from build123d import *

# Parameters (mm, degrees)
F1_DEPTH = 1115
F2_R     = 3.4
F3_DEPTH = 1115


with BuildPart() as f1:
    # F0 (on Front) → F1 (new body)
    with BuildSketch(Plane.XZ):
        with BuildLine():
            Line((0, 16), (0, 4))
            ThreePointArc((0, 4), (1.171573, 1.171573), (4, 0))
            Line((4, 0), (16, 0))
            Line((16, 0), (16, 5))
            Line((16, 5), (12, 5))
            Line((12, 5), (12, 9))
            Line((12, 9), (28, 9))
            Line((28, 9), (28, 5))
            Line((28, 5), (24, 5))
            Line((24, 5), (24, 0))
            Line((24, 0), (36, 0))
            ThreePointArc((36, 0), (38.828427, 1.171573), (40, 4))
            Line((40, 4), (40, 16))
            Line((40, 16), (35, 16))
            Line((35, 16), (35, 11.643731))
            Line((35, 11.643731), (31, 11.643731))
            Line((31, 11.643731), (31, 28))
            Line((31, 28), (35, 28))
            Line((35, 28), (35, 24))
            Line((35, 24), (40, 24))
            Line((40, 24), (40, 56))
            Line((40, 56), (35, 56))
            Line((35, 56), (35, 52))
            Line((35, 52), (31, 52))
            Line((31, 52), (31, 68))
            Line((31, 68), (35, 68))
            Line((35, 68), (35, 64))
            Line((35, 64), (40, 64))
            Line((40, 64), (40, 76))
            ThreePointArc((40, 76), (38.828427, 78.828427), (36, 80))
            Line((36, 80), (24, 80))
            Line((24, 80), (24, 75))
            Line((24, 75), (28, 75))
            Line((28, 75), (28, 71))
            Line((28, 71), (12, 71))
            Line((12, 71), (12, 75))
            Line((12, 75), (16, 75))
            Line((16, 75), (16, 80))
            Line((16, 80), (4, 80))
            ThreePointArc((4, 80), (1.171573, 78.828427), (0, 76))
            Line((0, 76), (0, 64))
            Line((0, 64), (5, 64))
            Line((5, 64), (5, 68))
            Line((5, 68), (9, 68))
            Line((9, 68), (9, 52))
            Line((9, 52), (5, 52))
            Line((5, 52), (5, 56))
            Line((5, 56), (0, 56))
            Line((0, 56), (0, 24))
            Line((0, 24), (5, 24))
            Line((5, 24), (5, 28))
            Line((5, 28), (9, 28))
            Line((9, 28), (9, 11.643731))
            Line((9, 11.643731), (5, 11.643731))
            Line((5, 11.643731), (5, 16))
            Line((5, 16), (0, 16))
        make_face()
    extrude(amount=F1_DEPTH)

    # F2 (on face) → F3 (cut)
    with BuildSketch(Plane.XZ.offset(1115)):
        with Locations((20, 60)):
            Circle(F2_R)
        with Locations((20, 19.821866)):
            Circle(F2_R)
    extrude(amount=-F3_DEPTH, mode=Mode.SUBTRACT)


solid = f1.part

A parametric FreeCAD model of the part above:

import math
import FreeCAD as App
import Part
import Sketcher
from FreeCAD import Vector
Q = App.Units.Quantity

doc = App.newDocument("Part")
body = doc.addObject("PartDesign::Body", "Body")

# Sketch on XZ plane
sketch1 = body.newObject("Sketcher::SketchObject", "Sketch")
sketch1.AttachmentSupport = (doc.getObject("XZ_Plane"), [""])
sketch1.MapMode = "FlatFace"
sketch1.addGeometry(Part.LineSegment(Vector(0, 16, 0), Vector(0, 4, 0)), False)
sketch1.addGeometry(Part.ArcOfCircle(Part.Circle(Vector(4, 4, 0), Vector(0, 0, 1), 4), math.radians(-180), math.radians(-90)), False)
sketch1.addGeometry(Part.LineSegment(Vector(4, 0, 0), Vector(16, 0, 0)), False)
sketch1.addGeometry(Part.LineSegment(Vector(16, 0, 0), Vector(16, 5, 0)), False)
sketch1.addGeometry(Part.LineSegment(Vector(16, 5, 0), Vector(12, 5, 0)), False)
sketch1.addGeometry(Part.LineSegment(Vector(12, 5, 0), Vector(12, 9, 0)), False)
sketch1.addGeometry(Part.LineSegment(Vector(12, 9, 0), Vector(28, 9, 0)), False)
sketch1.addGeometry(Part.LineSegment(Vector(28, 9, 0), Vector(28, 5, 0)), False)
sketch1.addGeometry(Part.LineSegment(Vector(28, 5, 0), Vector(24, 5, 0)), False)
sketch1.addGeometry(Part.LineSegment(Vector(24, 5, 0), Vector(24, 0, 0)), False)
sketch1.addGeometry(Part.LineSegment(Vector(24, 0, 0), Vector(36, 0, 0)), False)
sketch1.addGeometry(Part.ArcOfCircle(Part.Circle(Vector(36, 4, 0), Vector(0, 0, 1), 4), math.radians(-90), math.radians(0)), False)
sketch1.addGeometry(Part.LineSegment(Vector(40, 4, 0), Vector(40, 16, 0)), False)
sketch1.addGeometry(Part.LineSegment(Vector(40, 16, 0), Vector(35, 16, 0)), False)
sketch1.addGeometry(Part.LineSegment(Vector(35, 16, 0), Vector(35, 11.6, 0)), False)
sketch1.addGeometry(Part.LineSegment(Vector(35, 11.6, 0), Vector(31, 11.6, 0)), False)
sketch1.addGeometry(Part.LineSegment(Vector(31, 11.6, 0), Vector(31, 28, 0)), False)
sketch1.addGeometry(Part.LineSegment(Vector(31, 28, 0), Vector(35, 28, 0)), False)
sketch1.addGeometry(Part.LineSegment(Vector(35, 28, 0), Vector(35, 24, 0)), False)
sketch1.addGeometry(Part.LineSegment(Vector(35, 24, 0), Vector(40, 24, 0)), False)
sketch1.addGeometry(Part.LineSegment(Vector(40, 24, 0), Vector(40, 56, 0)), False)
sketch1.addGeometry(Part.LineSegment(Vector(40, 56, 0), Vector(35, 56, 0)), False)
sketch1.addGeometry(Part.LineSegment(Vector(35, 56, 0), Vector(35, 52, 0)), False)
sketch1.addGeometry(Part.LineSegment(Vector(35, 52, 0), Vector(31, 52, 0)), False)
sketch1.addGeometry(Part.LineSegment(Vector(31, 52, 0), Vector(31, 68, 0)), False)
sketch1.addGeometry(Part.LineSegment(Vector(31, 68, 0), Vector(35, 68, 0)), False)
sketch1.addGeometry(Part.LineSegment(Vector(35, 68, 0), Vector(35, 64, 0)), False)
sketch1.addGeometry(Part.LineSegment(Vector(35, 64, 0), Vector(40, 64, 0)), False)
sketch1.addGeometry(Part.LineSegment(Vector(40, 64, 0), Vector(40, 76, 0)), False)
sketch1.addGeometry(Part.ArcOfCircle(Part.Circle(Vector(36, 76, 0), Vector(0, 0, 1), 4), math.radians(0), math.radians(90)), False)
sketch1.addGeometry(Part.LineSegment(Vector(36, 80, 0), Vector(24, 80, 0)), False)
sketch1.addGeometry(Part.LineSegment(Vector(24, 80, 0), Vector(24, 75, 0)), False)
sketch1.addGeometry(Part.LineSegment(Vector(24, 75, 0), Vector(28, 75, 0)), False)
sketch1.addGeometry(Part.LineSegment(Vector(28, 75, 0), Vector(28, 71, 0)), False)
sketch1.addGeometry(Part.LineSegment(Vector(28, 71, 0), Vector(12, 71, 0)), False)
sketch1.addGeometry(Part.LineSegment(Vector(12, 71, 0), Vector(12, 75, 0)), False)
sketch1.addGeometry(Part.LineSegment(Vector(12, 75, 0), Vector(16, 75, 0)), False)
sketch1.addGeometry(Part.LineSegment(Vector(16, 75, 0), Vector(16, 80, 0)), False)
sketch1.addGeometry(Part.LineSegment(Vector(16, 80, 0), Vector(4, 80, 0)), False)
sketch1.addGeometry(Part.ArcOfCircle(Part.Circle(Vector(4, 76, 0), Vector(0, 0, 1), 4), math.radians(90), math.radians(180)), False)
sketch1.addGeometry(Part.LineSegment(Vector(0, 76, 0), Vector(0, 64, 0)), False)
sketch1.addGeometry(Part.LineSegment(Vector(0, 64, 0), Vector(5, 64, 0)), False)
sketch1.addGeometry(Part.LineSegment(Vector(5, 64, 0), Vector(5, 68, 0)), False)
sketch1.addGeometry(Part.LineSegment(Vector(5, 68, 0), Vector(9, 68, 0)), False)
sketch1.addGeometry(Part.LineSegment(Vector(9, 68, 0), Vector(9, 52, 0)), False)
sketch1.addGeometry(Part.LineSegment(Vector(9, 52, 0), Vector(5, 52, 0)), False)
sketch1.addGeometry(Part.LineSegment(Vector(5, 52, 0), Vector(5, 56, 0)), False)
sketch1.addGeometry(Part.LineSegment(Vector(5, 56, 0), Vector(0, 56, 0)), False)
sketch1.addGeometry(Part.LineSegment(Vector(0, 56, 0), Vector(0, 24, 0)), False)
sketch1.addGeometry(Part.LineSegment(Vector(0, 24, 0), Vector(5, 24, 0)), False)
sketch1.addGeometry(Part.LineSegment(Vector(5, 24, 0), Vector(5, 28, 0)), False)
sketch1.addGeometry(Part.LineSegment(Vector(5, 28, 0), Vector(9, 28, 0)), False)
sketch1.addGeometry(Part.LineSegment(Vector(9, 28, 0), Vector(9, 11.6, 0)), False)
sketch1.addGeometry(Part.LineSegment(Vector(9, 11.6, 0), Vector(5, 11.6, 0)), False)
sketch1.addGeometry(Part.LineSegment(Vector(5, 11.6, 0), Vector(5, 16, 0)), False)
sketch1.addGeometry(Part.LineSegment(Vector(5, 16, 0), Vector(0, 16, 0)), False)
sketch1.addConstraint(Sketcher.Constraint("Tangent", 0, 2, 1, 1))
sketch1.addConstraint(Sketcher.Constraint("Tangent", 1, 2, 2, 1))
sketch1.addConstraint(Sketcher.Constraint("Coincident", 2, 2, 3, 1))
sketch1.addConstraint(Sketcher.Constraint("Coincident", 3, 2, 4, 1))
sketch1.addConstraint(Sketcher.Constraint("Coincident", 4, 2, 5, 1))
sketch1.addConstraint(Sketcher.Constraint("Coincident", 5, 2, 6, 1))
sketch1.addConstraint(Sketcher.Constraint("Coincident", 6, 2, 7, 1))
sketch1.addConstraint(Sketcher.Constraint("Coincident", 7, 2, 8, 1))
sketch1.addConstraint(Sketcher.Constraint("Coincident", 8, 2, 9, 1))
sketch1.addConstraint(Sketcher.Constraint("Coincident", 9, 2, 10, 1))
sketch1.addConstraint(Sketcher.Constraint("Tangent", 10, 2, 11, 1))
sketch1.addConstraint(Sketcher.Constraint("Tangent", 11, 2, 12, 1))
sketch1.addConstraint(Sketcher.Constraint("Coincident", 12, 2, 13, 1))
sketch1.addConstraint(Sketcher.Constraint("Coincident", 13, 2, 14, 1))
sketch1.addConstraint(Sketcher.Constraint("Coincident", 14, 2, 15, 1))
sketch1.addConstraint(Sketcher.Constraint("Coincident", 15, 2, 16, 1))
sketch1.addConstraint(Sketcher.Constraint("Coincident", 16, 2, 17, 1))
sketch1.addConstraint(Sketcher.Constraint("Coincident", 17, 2, 18, 1))
sketch1.addConstraint(Sketcher.Constraint("Coincident", 18, 2, 19, 1))
sketch1.addConstraint(Sketcher.Constraint("Coincident", 19, 2, 20, 1))
sketch1.addConstraint(Sketcher.Constraint("Coincident", 20, 2, 21, 1))
sketch1.addConstraint(Sketcher.Constraint("Coincident", 21, 2, 22, 1))
sketch1.addConstraint(Sketcher.Constraint("Coincident", 22, 2, 23, 1))
sketch1.addConstraint(Sketcher.Constraint("Coincident", 23, 2, 24, 1))
sketch1.addConstraint(Sketcher.Constraint("Coincident", 24, 2, 25, 1))
sketch1.addConstraint(Sketcher.Constraint("Coincident", 25, 2, 26, 1))
sketch1.addConstraint(Sketcher.Constraint("Coincident", 26, 2, 27, 1))
sketch1.addConstraint(Sketcher.Constraint("Coincident", 27, 2, 28, 1))
sketch1.addConstraint(Sketcher.Constraint("Tangent", 28, 2, 29, 1))
sketch1.addConstraint(Sketcher.Constraint("Tangent", 29, 2, 30, 1))
sketch1.addConstraint(Sketcher.Constraint("Coincident", 30, 2, 31, 1))
sketch1.addConstraint(Sketcher.Constraint("Coincident", 31, 2, 32, 1))
sketch1.addConstraint(Sketcher.Constraint("Coincident", 32, 2, 33, 1))
sketch1.addConstraint(Sketcher.Constraint("Coincident", 33, 2, 34, 1))
sketch1.addConstraint(Sketcher.Constraint("Coincident", 34, 2, 35, 1))
sketch1.addConstraint(Sketcher.Constraint("Coincident", 35, 2, 36, 1))
sketch1.addConstraint(Sketcher.Constraint("Coincident", 36, 2, 37, 1))
sketch1.addConstraint(Sketcher.Constraint("Coincident", 37, 2, 38, 1))
sketch1.addConstraint(Sketcher.Constraint("Tangent", 38, 2, 39, 1))
sketch1.addConstraint(Sketcher.Constraint("Tangent", 39, 2, 40, 1))
sketch1.addConstraint(Sketcher.Constraint("Coincident", 40, 2, 41, 1))
sketch1.addConstraint(Sketcher.Constraint("Coincident", 41, 2, 42, 1))
sketch1.addConstraint(Sketcher.Constraint("Coincident", 42, 2, 43, 1))
sketch1.addConstraint(Sketcher.Constraint("Coincident", 43, 2, 44, 1))
sketch1.addConstraint(Sketcher.Constraint("Coincident", 44, 2, 45, 1))
sketch1.addConstraint(Sketcher.Constraint("Coincident", 45, 2, 46, 1))
sketch1.addConstraint(Sketcher.Constraint("Coincident", 46, 2, 47, 1))
sketch1.addConstraint(Sketcher.Constraint("Coincident", 47, 2, 48, 1))
sketch1.addConstraint(Sketcher.Constraint("Coincident", 48, 2, 49, 1))
sketch1.addConstraint(Sketcher.Constraint("Coincident", 49, 2, 50, 1))
sketch1.addConstraint(Sketcher.Constraint("Coincident", 50, 2, 51, 1))
sketch1.addConstraint(Sketcher.Constraint("Coincident", 51, 2, 52, 1))
sketch1.addConstraint(Sketcher.Constraint("Coincident", 52, 2, 53, 1))
sketch1.addConstraint(Sketcher.Constraint("Coincident", 53, 2, 54, 1))
sketch1.addConstraint(Sketcher.Constraint("Coincident", 54, 2, 55, 1))
sketch1.addConstraint(Sketcher.Constraint("Coincident", 55, 2, 0, 1))
sketch1.addConstraint(Sketcher.Constraint("Vertical", 0))
sketch1.addConstraint(Sketcher.Constraint("Horizontal", 2))
sketch1.addConstraint(Sketcher.Constraint("Vertical", 3))
sketch1.addConstraint(Sketcher.Constraint("Horizontal", 4))
sketch1.addConstraint(Sketcher.Constraint("Vertical", 5))
sketch1.addConstraint(Sketcher.Constraint("Horizontal", 6))
sketch1.addConstraint(Sketcher.Constraint("Vertical", 7))
sketch1.addConstraint(Sketcher.Constraint("Horizontal", 8))
sketch1.addConstraint(Sketcher.Constraint("Vertical", 9))
sketch1.addConstraint(Sketcher.Constraint("Horizontal", 10))
sketch1.addConstraint(Sketcher.Constraint("Vertical", 12))
sketch1.addConstraint(Sketcher.Constraint("Horizontal", 13))
sketch1.addConstraint(Sketcher.Constraint("Vertical", 14))
sketch1.addConstraint(Sketcher.Constraint("Horizontal", 15))
sketch1.addConstraint(Sketcher.Constraint("Vertical", 16))
sketch1.addConstraint(Sketcher.Constraint("Horizontal", 17))
sketch1.addConstraint(Sketcher.Constraint("Vertical", 18))
sketch1.addConstraint(Sketcher.Constraint("Horizontal", 19))
sketch1.addConstraint(Sketcher.Constraint("Vertical", 20))
sketch1.addConstraint(Sketcher.Constraint("Horizontal", 21))
sketch1.addConstraint(Sketcher.Constraint("Vertical", 22))
sketch1.addConstraint(Sketcher.Constraint("Horizontal", 23))
sketch1.addConstraint(Sketcher.Constraint("Vertical", 24))
sketch1.addConstraint(Sketcher.Constraint("Horizontal", 25))
sketch1.addConstraint(Sketcher.Constraint("Vertical", 26))
sketch1.addConstraint(Sketcher.Constraint("Horizontal", 27))
sketch1.addConstraint(Sketcher.Constraint("Vertical", 28))
sketch1.addConstraint(Sketcher.Constraint("Horizontal", 30))
sketch1.addConstraint(Sketcher.Constraint("Vertical", 31))
sketch1.addConstraint(Sketcher.Constraint("Horizontal", 32))
sketch1.addConstraint(Sketcher.Constraint("Vertical", 33))
sketch1.addConstraint(Sketcher.Constraint("Horizontal", 34))
sketch1.addConstraint(Sketcher.Constraint("Vertical", 35))
sketch1.addConstraint(Sketcher.Constraint("Horizontal", 36))
sketch1.addConstraint(Sketcher.Constraint("Vertical", 37))
sketch1.addConstraint(Sketcher.Constraint("Horizontal", 38))
sketch1.addConstraint(Sketcher.Constraint("Vertical", 40))
sketch1.addConstraint(Sketcher.Constraint("Horizontal", 41))
sketch1.addConstraint(Sketcher.Constraint("Vertical", 42))
sketch1.addConstraint(Sketcher.Constraint("Horizontal", 43))
sketch1.addConstraint(Sketcher.Constraint("Vertical", 44))
sketch1.addConstraint(Sketcher.Constraint("Horizontal", 45))
sketch1.addConstraint(Sketcher.Constraint("Vertical", 46))
sketch1.addConstraint(Sketcher.Constraint("Horizontal", 47))
sketch1.addConstraint(Sketcher.Constraint("Vertical", 48))
sketch1.addConstraint(Sketcher.Constraint("Horizontal", 49))
sketch1.addConstraint(Sketcher.Constraint("Vertical", 50))
sketch1.addConstraint(Sketcher.Constraint("Horizontal", 51))
sketch1.addConstraint(Sketcher.Constraint("Vertical", 52))
sketch1.addConstraint(Sketcher.Constraint("Horizontal", 53))
sketch1.addConstraint(Sketcher.Constraint("Vertical", 54))
sketch1.addConstraint(Sketcher.Constraint("Horizontal", 55))
sketch1.addConstraint(Sketcher.Constraint("Equal", 1, 11))
sketch1.addConstraint(Sketcher.Constraint("Equal", 11, 29))
sketch1.addConstraint(Sketcher.Constraint("Equal", 29, 39))
sketch1.addConstraint(Sketcher.Constraint("PointOnObject", 0, 2, -2))
sketch1.addConstraint(Sketcher.Constraint("PointOnObject", 1, 2, -1))
sketch1.addConstraint(Sketcher.Constraint("PointOnObject", 9, 2, -1))
sketch1.addConstraint(Sketcher.Constraint("PointOnObject", 39, 2, -2))
sketch1.addConstraint(Sketcher.Constraint("PointOnObject", 47, 2, -2))
sketch1.addConstraint(Sketcher.Constraint("Horizontal", 29, 3, 39, 3))
sketch1.addConstraint(Sketcher.Constraint("Horizontal", 4, 2, 7, 2))
sketch1.addConstraint(Sketcher.Constraint("Horizontal", 32, 2, 35, 2))
sketch1.addConstraint(Sketcher.Constraint("Horizontal", 27, 2, 40, 2))
sketch1.addConstraint(Sketcher.Constraint("Horizontal", 25, 2, 42, 2))
sketch1.addConstraint(Sketcher.Constraint("Horizontal", 23, 2, 44, 2))
sketch1.addConstraint(Sketcher.Constraint("Horizontal", 21, 2, 46, 2))
sketch1.addConstraint(Sketcher.Constraint("Horizontal", 19, 2, 48, 2))
sketch1.addConstraint(Sketcher.Constraint("Horizontal", 17, 2, 50, 2))
sketch1.addConstraint(Sketcher.Constraint("Horizontal", 15, 2, 52, 2))
sketch1.addConstraint(Sketcher.Constraint("Horizontal", 13, 2, 54, 2))
sketch1.addConstraint(Sketcher.Constraint("Vertical", 11, 3, 29, 3))
sketch1.addConstraint(Sketcher.Constraint("Vertical", 14, 2, 17, 2))
sketch1.addConstraint(Sketcher.Constraint("Vertical", 12, 2, 19, 2))
sketch1.addConstraint(Sketcher.Constraint("Vertical", 18, 2, 21, 2))
sketch1.addConstraint(Sketcher.Constraint("Vertical", 16, 2, 23, 2))
sketch1.addConstraint(Sketcher.Constraint("Vertical", 22, 2, 25, 2))
sketch1.addConstraint(Sketcher.Constraint("Vertical", 9, 2, 30, 2))
sketch1.addConstraint(Sketcher.Constraint("Vertical", 7, 2, 32, 2))
sketch1.addConstraint(Sketcher.Constraint("Vertical", 5, 2, 34, 2))
sketch1.addConstraint(Sketcher.Constraint("Vertical", 3, 2, 36, 2))
sketch1.addConstraint(Sketcher.Constraint("Vertical", 42, 2, 45, 2))
sketch1.addConstraint(Sketcher.Constraint("Vertical", 46, 2, 49, 2))
sketch1.addConstraint(Sketcher.Constraint("Vertical", 44, 2, 51, 2))
sketch1.addConstraint(Sketcher.Constraint("Vertical", 50, 2, 53, 2))
sketch1.addConstraint(Sketcher.Constraint("Equal", 4, 8))
sketch1.addConstraint(Sketcher.Constraint("Equal", 2, 10))
sketch1.addConstraint(Sketcher.Constraint("Equal", 8, 15))
sketch1.addConstraint(Sketcher.Constraint("Equal", 27, 41))
sketch1.addConstraint(Sketcher.Constraint("Equal", 36, 43))
sketch1.addConstraint(Sketcher.Constraint("Equal", 38, 0))
sketch1.addConstraint(Sketcher.Constraint("Equal", 55, 3))
sketch1.addConstraint(Sketcher.Constraint("Equal", 53, 5))
sketch1.addConstraint(Sketcher.Constraint("Equal", 7, 18))
sketch1.addConstraint(Sketcher.Constraint("Equal", 18, 22))
sketch1.addConstraint(Sketcher.Constraint("Equal", 34, 24))
sketch1.addConstraint(Sketcher.Constraint("Equal", 22, 26))
sketch1.addConstraint(Sketcher.Constraint("Equal", 12, 28))
sketch1.addConstraint(Sketcher.Constraint("Equal", 9, 31))
sketch1.addConstraint(Sketcher.Constraint("Equal", 26, 33))
sketch1.addConstraint(Sketcher.Constraint("Radius", 1, Q("4 mm")))
sketch1.addConstraint(Sketcher.Constraint("DistanceX", 2, 1, 2, 2, Q("12 mm")))
sketch1.addConstraint(Sketcher.Constraint("DistanceX", 4, 2, 4, 1, Q("4 mm")))
sketch1.addConstraint(Sketcher.Constraint("DistanceX", 6, 1, 6, 2, Q("16 mm")))
sketch1.addConstraint(Sketcher.Constraint("DistanceX", 13, 2, 13, 1, Q("5 mm")))
sketch1.addConstraint(Sketcher.Constraint("DistanceY", 20, 1, 20, 2, Q("32 mm")))
sketch1.addConstraint(Sketcher.Constraint("DistanceY", -1, 1, 29, 3, Q("76 mm")))
sketch1.addConstraint(Sketcher.Constraint("DistanceY", 14, 2, 14, 1, Q("4.356269 mm")))
pad1 = body.newObject("PartDesign::Pad", "Pad")
pad1.Profile = sketch1
pad1.Length = 1115

# Sketch on XZ plane
sketch2 = body.newObject("Sketcher::SketchObject", "Sketch001")
sketch2.AttachmentSupport = (doc.getObject("XZ_Plane"), [""])
sketch2.MapMode = "FlatFace"
sketch2.AttachmentOffset = App.Placement(Vector(0, 0, 1115), App.Rotation())
sketch2.addGeometry(Part.Circle(Vector(20, 60, 0), Vector(0, 0, 1), 3.4), False)
sketch2.addGeometry(Part.Circle(Vector(20, 19.8, 0), Vector(0, 0, 1), 3.4), False)
sketch2.addConstraint(Sketcher.Constraint("Equal", 0, 1))
sketch2.addConstraint(Sketcher.Constraint("Vertical", 0, 3, 1, 3))
sketch2.addConstraint(Sketcher.Constraint("Diameter", 0, Q("6.8 mm")))
sketch2.addConstraint(Sketcher.Constraint("DistanceX", -1, 1, 0, 3, Q("20 mm")))
sketch2.addConstraint(Sketcher.Constraint("DistanceY", -1, 1, 0, 3, Q("60 mm")))
sketch2.addConstraint(Sketcher.Constraint("DistanceY", -1, 1, 1, 3, Q("19.821866 mm")))
pocket1 = body.newObject("PartDesign::Pocket", "Pocket")
pocket1.Profile = sketch2
pocket1.Length = 1115

doc.recompute()
